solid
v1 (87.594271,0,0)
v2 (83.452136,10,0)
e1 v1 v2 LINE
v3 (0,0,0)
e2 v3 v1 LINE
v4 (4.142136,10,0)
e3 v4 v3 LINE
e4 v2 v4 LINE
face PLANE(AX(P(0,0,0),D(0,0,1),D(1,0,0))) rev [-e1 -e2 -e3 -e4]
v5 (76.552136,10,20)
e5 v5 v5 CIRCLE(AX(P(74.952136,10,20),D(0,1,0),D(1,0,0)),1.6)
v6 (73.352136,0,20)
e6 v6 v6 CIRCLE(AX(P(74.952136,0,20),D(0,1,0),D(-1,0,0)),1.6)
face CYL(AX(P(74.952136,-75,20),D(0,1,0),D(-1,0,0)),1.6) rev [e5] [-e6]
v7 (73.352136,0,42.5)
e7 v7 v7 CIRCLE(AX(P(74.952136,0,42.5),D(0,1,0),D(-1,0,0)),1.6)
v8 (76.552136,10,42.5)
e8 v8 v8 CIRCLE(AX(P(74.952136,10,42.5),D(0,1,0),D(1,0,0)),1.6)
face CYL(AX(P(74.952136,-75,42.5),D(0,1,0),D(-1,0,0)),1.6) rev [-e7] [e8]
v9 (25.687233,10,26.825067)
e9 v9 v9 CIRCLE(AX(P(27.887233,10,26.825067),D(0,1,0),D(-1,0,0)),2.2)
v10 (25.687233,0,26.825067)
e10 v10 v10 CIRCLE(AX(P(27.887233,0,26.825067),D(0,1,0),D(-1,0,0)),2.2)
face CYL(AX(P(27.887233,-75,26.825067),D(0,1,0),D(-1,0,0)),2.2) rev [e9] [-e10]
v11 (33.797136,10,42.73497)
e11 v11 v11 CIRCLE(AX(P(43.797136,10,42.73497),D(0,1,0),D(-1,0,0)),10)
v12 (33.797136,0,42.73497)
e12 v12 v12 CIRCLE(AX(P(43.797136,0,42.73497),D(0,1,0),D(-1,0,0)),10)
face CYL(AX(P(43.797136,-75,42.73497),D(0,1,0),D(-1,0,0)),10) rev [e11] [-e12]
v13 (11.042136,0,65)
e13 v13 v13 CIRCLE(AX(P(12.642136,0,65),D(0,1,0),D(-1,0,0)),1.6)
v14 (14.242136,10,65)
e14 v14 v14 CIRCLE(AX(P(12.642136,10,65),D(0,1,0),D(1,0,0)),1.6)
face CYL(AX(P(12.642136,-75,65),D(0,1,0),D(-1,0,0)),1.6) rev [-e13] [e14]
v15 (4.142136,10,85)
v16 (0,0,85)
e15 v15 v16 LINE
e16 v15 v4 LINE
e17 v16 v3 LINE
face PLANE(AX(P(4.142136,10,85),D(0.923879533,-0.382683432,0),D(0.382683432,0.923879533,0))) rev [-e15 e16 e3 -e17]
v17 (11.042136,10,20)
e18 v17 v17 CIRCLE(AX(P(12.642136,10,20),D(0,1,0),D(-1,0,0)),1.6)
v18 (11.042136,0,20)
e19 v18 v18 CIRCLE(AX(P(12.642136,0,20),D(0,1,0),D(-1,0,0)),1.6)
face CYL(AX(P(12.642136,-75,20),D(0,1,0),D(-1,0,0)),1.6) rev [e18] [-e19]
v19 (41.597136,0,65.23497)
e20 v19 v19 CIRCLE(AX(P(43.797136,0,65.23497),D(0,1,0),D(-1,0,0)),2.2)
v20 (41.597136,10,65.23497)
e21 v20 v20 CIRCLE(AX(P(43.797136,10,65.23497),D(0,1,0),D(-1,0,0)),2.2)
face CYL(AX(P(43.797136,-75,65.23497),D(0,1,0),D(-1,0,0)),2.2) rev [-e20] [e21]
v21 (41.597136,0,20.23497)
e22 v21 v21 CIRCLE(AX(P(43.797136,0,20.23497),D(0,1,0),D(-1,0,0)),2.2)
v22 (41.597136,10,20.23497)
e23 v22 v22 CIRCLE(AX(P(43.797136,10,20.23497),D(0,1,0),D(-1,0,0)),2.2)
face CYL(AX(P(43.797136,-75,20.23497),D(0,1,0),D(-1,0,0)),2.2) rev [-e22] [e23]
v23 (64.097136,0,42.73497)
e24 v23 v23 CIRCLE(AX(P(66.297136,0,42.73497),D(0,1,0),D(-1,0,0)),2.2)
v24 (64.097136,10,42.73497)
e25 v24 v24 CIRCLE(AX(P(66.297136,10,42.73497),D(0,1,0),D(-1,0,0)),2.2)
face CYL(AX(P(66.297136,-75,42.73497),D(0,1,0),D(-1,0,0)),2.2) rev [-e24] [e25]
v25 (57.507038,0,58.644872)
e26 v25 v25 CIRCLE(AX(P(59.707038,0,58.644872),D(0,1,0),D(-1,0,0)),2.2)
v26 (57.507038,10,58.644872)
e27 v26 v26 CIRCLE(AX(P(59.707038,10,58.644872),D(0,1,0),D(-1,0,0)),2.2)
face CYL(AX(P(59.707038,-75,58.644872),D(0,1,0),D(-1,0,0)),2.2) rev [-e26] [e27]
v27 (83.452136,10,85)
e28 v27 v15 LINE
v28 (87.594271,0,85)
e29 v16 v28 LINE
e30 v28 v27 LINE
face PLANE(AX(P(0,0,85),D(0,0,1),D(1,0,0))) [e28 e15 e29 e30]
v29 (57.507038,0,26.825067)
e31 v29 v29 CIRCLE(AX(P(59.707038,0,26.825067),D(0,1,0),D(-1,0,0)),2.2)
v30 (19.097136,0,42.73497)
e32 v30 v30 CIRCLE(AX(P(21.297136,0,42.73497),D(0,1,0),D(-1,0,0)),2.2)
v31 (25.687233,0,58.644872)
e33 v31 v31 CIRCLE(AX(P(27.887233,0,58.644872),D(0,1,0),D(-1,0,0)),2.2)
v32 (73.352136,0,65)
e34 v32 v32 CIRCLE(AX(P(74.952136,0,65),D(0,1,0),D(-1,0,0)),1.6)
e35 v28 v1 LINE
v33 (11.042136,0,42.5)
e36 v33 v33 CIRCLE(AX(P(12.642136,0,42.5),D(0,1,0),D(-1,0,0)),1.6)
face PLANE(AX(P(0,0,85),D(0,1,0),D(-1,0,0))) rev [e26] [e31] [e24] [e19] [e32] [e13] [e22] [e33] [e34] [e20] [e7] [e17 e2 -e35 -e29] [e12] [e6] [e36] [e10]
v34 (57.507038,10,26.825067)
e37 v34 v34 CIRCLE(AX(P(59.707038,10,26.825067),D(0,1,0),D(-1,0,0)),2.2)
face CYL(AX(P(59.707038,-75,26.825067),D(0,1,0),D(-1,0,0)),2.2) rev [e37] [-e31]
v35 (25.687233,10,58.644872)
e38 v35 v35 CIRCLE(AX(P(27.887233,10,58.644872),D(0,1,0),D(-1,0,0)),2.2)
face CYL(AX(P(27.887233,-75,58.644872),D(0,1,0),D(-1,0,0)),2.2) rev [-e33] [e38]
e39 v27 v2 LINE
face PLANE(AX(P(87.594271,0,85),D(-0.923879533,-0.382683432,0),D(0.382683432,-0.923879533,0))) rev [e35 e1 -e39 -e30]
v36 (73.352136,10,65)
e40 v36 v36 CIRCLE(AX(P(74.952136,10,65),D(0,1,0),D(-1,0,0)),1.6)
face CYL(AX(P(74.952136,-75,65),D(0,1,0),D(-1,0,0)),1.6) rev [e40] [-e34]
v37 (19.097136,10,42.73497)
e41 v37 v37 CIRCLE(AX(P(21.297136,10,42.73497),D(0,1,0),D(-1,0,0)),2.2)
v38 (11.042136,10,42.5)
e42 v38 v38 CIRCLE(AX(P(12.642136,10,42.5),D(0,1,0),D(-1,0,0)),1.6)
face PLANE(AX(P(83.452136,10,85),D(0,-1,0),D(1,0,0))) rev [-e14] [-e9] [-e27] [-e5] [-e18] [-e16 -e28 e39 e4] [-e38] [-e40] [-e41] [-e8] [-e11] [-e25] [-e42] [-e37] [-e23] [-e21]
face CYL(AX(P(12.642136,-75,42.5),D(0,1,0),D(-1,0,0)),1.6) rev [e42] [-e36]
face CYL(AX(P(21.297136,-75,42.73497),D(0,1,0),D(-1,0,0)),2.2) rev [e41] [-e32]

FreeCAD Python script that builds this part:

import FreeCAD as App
import Part
import Sketcher

V = App.Vector
Q = App.Units.Quantity


def add_polygon(sketch, points):
    """Adds a closed chain of lines whose ends are joined by coincident constraints."""
    first, n = sketch.GeometryCount, len(points)
    for a, b in zip(points, points[1:] + points[:1]):
        sketch.addGeometry(Part.LineSegment(App.Vector(*a, 0), App.Vector(*b, 0)), False)
    for i in range(n):
        sketch.addConstraint(Sketcher.Constraint("Coincident", first + i, 2, first + (i + 1) % n, 1))

doc = App.newDocument("Part")
body = doc.addObject("PartDesign::Body", "Body")

# Sketch on XY plane
sketch1 = body.newObject("Sketcher::SketchObject", "Sketch")
sketch1.AttachmentSupport = (doc.getObject("XY_Plane"), [""])
sketch1.MapMode = "FlatFace"
add_polygon(sketch1, [(0, 0), (88, 0), (83, 10), (4, 10)])  # lines 0-3
sketch1.addConstraint(Sketcher.Constraint("Horizontal", 0))
sketch1.addConstraint(Sketcher.Constraint("Horizontal", 2))
sketch1.addConstraint(Sketcher.Constraint("Coincident", 3, 2, -1, 1))
sketch1.addConstraint(Sketcher.Constraint("Equal", 1, 3))
sketch1.addConstraint(Sketcher.Constraint("DistanceY", -1, 1, 1, 2, Q("10 mm")))
sketch1.addConstraint(Sketcher.Constraint("Angle", 1, Q("112.5 deg")))
sketch1.addConstraint(Sketcher.Constraint("DistanceX", 2, 2, 2, 1, Q("79.31 mm")))
pad1 = body.newObject("PartDesign::Pad", "Pad")
pad1.Profile = sketch1
pad1.Length = 85

# Sketch on XZ plane
sketch2 = body.newObject("Sketcher::SketchObject", "Sketch001")
sketch2.AttachmentSupport = (doc.getObject("XZ_Plane"), [""])
sketch2.MapMode = "FlatFace"
sketch2.AttachmentOffset = App.Placement(V(0, 0, -10), App.Rotation())
sketch2.addGeometry(Part.Circle(V(43.8, 42.7, 0), V(0, 0, 1), 10), False)
sketch2.addGeometry(Part.Circle(V(43.8, 20.2, 0), V(0, 0, 1), 2.2), False)
sketch2.addGeometry(Part.Circle(V(59.7, 26.8, 0), V(0, 0, 1), 2.2), False)
sketch2.addGeometry(Part.Circle(V(66.3, 42.7, 0), V(0, 0, 1), 2.2), False)
sketch2.addGeometry(Part.Circle(V(59.7, 58.6, 0), V(0, 0, 1), 2.2), False)
sketch2.addGeometry(Part.Circle(V(43.8, 65.2, 0), V(0, 0, 1), 2.2), False)
sketch2.addGeometry(Part.Circle(V(27.9, 58.6, 0), V(0, 0, 1), 2.2), False)
sketch2.addGeometry(Part.Circle(V(21.3, 42.7, 0), V(0, 0, 1), 2.2), False)
sketch2.addGeometry(Part.Circle(V(27.9, 26.8, 0), V(0, 0, 1), 2.2), False)
sketch2.addConstraint(Sketcher.Constraint("Equal", 1, 2))
sketch2.addConstraint(Sketcher.Constraint("Equal", 2, 3))
sketch2.addConstraint(Sketcher.Constraint("Equal", 3, 4))
sketch2.addConstraint(Sketcher.Constraint("Equal", 4, 5))
sketch2.addConstraint(Sketcher.Constraint("Equal", 5, 6))
sketch2.addConstraint(Sketcher.Constraint("Equal", 6, 7))
sketch2.addConstraint(Sketcher.Constraint("Equal", 7, 8))
sketch2.addConstraint(Sketcher.Constraint("Horizontal", 0, 3, 3, 3))
sketch2.addConstraint(Sketcher.Constraint("Horizontal", 4, 3, 6, 3))
sketch2.addConstraint(Sketcher.Constraint("Horizontal", 3, 3, 7, 3))
sketch2.addConstraint(Sketcher.Constraint("Horizontal", 2, 3, 8, 3))
sketch2.addConstraint(Sketcher.Constraint("Vertical", 0, 3, 1, 3))
sketch2.addConstraint(Sketcher.Constraint("Vertical", 2, 3, 4, 3))
sketch2.addConstraint(Sketcher.Constraint("Vertical", 1, 3, 5, 3))
sketch2.addConstraint(Sketcher.Constraint("Vertical", 6, 3, 8, 3))
sketch2.addConstraint(Sketcher.Constraint("Diameter", 0, Q("20 mm")))
sketch2.addConstraint(Sketcher.Constraint("Diameter", 1, Q("4.4 mm")))
sketch2.addConstraint(Sketcher.Constraint("DistanceY", 1, 3, 5, 3, Q("45 mm")))
sketch2.addConstraint(Sketcher.Constraint("DistanceY", 1, 3, 0, 3, Q("22.5 mm")))
sketch2.addConstraint(Sketcher.Constraint("DistanceX", 0, 3, 3, 3, Q("22.5 mm")))
sketch2.addConstraint(Sketcher.Constraint("DistanceX", 7, 3, 0, 3, Q("22.5 mm")))
sketch2.addConstraint(Sketcher.Constraint("DistanceY", -1, 1, 0, 3, Q("42.73497 mm")))
sketch2.addConstraint(Sketcher.Constraint("DistanceX", -1, 1, 2, 3, Q("59.707038 mm")))
sketch2.addConstraint(Sketcher.Constraint("DistanceX", -1, 1, 0, 3, Q("43.797136 mm")))
sketch2.addConstraint(Sketcher.Constraint("DistanceY", -1, 1, 2, 3, Q("26.825067 mm")))
sketch2.addConstraint(Sketcher.Constraint("DistanceY", -1, 1, 4, 3, Q("58.644872 mm")))
sketch2.addConstraint(Sketcher.Constraint("DistanceX", -1, 1, 6, 3, Q("27.887233 mm")))
pocket1 = body.newObject("PartDesign::Pocket", "Pocket")
pocket1.Profile = sketch2
pocket1.Length = 85
pocket1.Reversed = True

# Sketch on XZ plane
sketch3 = body.newObject("Sketcher::SketchObject", "Sketch002")
sketch3.AttachmentSupport = (doc.getObject("XZ_Plane"), [""])
sketch3.MapMode = "FlatFace"
sketch3.AttachmentOffset = App.Placement(V(0, 0, -10), App.Rotation())
sketch3.addGeometry(Part.Circle(V(12.6, 20, 0), V(0, 0, 1), 1.6), False)
sketch3.addGeometry(Part.Circle(V(12.6, 42.5, 0), V(0, 0, 1), 1.6), False)
sketch3.addGeometry(Part.Circle(V(12.6, 65, 0), V(0, 0, 1), 1.6), False)
sketch3.addGeometry(Part.Circle(V(75, 65, 0), V(0, 0, 1), 1.6), False)
sketch3.addGeometry(Part.Circle(V(75, 42.5, 0), V(0, 0, 1), 1.6), False)
sketch3.addGeometry(Part.Circle(V(75, 20, 0), V(0, 0, 1), 1.6), False)
sketch3.addConstraint(Sketcher.Constraint("Equal", 0, 1))
sketch3.addConstraint(Sketcher.Constraint("Equal", 1, 2))
sketch3.addConstraint(Sketcher.Constraint("Equal", 2, 3))
sketch3.addConstraint(Sketcher.Constraint("Equal", 3, 4))
sketch3.addConstraint(Sketcher.Constraint("Equal", 4, 5))
sketch3.addConstraint(Sketcher.Constraint("Horizontal", 2, 3, 3, 3))
sketch3.addConstraint(Sketcher.Constraint("Horizontal", 1, 3, 4, 3))
sketch3.addConstraint(Sketcher.Constraint("Horizontal", 0, 3, 5, 3))
sketch3.addConstraint(Sketcher.Constraint("Vertical", 0, 3, 1, 3))
sketch3.addConstraint(Sketcher.Constraint("Vertical", 1, 3, 2, 3))
sketch3.addConstraint(Sketcher.Constraint("Vertical", 3, 3, 4, 3))
sketch3.addConstraint(Sketcher.Constraint("Vertical", 4, 3, 5, 3))
sketch3.addConstraint(Sketcher.Constraint("Diameter", 0, Q("3.2 mm")))
sketch3.addConstraint(Sketcher.Constraint("DistanceY", -1, 1, 0, 3, Q("20 mm")))
sketch3.addConstraint(Sketcher.Constraint("DistanceY", -1, 1, 2, 3, Q("65 mm")))
sketch3.addConstraint(Sketcher.Constraint("DistanceY", -1, 1, 1, 3, Q("42.5 mm")))
sketch3.addConstraint(Sketcher.Constraint("DistanceX", 2, 3, 3, 3, Q("62.31 mm")))
sketch3.addConstraint(Sketcher.Constraint("DistanceX", -1, 1, 0, 3, Q("12.642136 mm")))
pocket2 = body.newObject("PartDesign::Pocket", "Pocket001")
pocket2.Profile = sketch3
pocket2.Length = 85
pocket2.Reversed = True

doc.recompute()
